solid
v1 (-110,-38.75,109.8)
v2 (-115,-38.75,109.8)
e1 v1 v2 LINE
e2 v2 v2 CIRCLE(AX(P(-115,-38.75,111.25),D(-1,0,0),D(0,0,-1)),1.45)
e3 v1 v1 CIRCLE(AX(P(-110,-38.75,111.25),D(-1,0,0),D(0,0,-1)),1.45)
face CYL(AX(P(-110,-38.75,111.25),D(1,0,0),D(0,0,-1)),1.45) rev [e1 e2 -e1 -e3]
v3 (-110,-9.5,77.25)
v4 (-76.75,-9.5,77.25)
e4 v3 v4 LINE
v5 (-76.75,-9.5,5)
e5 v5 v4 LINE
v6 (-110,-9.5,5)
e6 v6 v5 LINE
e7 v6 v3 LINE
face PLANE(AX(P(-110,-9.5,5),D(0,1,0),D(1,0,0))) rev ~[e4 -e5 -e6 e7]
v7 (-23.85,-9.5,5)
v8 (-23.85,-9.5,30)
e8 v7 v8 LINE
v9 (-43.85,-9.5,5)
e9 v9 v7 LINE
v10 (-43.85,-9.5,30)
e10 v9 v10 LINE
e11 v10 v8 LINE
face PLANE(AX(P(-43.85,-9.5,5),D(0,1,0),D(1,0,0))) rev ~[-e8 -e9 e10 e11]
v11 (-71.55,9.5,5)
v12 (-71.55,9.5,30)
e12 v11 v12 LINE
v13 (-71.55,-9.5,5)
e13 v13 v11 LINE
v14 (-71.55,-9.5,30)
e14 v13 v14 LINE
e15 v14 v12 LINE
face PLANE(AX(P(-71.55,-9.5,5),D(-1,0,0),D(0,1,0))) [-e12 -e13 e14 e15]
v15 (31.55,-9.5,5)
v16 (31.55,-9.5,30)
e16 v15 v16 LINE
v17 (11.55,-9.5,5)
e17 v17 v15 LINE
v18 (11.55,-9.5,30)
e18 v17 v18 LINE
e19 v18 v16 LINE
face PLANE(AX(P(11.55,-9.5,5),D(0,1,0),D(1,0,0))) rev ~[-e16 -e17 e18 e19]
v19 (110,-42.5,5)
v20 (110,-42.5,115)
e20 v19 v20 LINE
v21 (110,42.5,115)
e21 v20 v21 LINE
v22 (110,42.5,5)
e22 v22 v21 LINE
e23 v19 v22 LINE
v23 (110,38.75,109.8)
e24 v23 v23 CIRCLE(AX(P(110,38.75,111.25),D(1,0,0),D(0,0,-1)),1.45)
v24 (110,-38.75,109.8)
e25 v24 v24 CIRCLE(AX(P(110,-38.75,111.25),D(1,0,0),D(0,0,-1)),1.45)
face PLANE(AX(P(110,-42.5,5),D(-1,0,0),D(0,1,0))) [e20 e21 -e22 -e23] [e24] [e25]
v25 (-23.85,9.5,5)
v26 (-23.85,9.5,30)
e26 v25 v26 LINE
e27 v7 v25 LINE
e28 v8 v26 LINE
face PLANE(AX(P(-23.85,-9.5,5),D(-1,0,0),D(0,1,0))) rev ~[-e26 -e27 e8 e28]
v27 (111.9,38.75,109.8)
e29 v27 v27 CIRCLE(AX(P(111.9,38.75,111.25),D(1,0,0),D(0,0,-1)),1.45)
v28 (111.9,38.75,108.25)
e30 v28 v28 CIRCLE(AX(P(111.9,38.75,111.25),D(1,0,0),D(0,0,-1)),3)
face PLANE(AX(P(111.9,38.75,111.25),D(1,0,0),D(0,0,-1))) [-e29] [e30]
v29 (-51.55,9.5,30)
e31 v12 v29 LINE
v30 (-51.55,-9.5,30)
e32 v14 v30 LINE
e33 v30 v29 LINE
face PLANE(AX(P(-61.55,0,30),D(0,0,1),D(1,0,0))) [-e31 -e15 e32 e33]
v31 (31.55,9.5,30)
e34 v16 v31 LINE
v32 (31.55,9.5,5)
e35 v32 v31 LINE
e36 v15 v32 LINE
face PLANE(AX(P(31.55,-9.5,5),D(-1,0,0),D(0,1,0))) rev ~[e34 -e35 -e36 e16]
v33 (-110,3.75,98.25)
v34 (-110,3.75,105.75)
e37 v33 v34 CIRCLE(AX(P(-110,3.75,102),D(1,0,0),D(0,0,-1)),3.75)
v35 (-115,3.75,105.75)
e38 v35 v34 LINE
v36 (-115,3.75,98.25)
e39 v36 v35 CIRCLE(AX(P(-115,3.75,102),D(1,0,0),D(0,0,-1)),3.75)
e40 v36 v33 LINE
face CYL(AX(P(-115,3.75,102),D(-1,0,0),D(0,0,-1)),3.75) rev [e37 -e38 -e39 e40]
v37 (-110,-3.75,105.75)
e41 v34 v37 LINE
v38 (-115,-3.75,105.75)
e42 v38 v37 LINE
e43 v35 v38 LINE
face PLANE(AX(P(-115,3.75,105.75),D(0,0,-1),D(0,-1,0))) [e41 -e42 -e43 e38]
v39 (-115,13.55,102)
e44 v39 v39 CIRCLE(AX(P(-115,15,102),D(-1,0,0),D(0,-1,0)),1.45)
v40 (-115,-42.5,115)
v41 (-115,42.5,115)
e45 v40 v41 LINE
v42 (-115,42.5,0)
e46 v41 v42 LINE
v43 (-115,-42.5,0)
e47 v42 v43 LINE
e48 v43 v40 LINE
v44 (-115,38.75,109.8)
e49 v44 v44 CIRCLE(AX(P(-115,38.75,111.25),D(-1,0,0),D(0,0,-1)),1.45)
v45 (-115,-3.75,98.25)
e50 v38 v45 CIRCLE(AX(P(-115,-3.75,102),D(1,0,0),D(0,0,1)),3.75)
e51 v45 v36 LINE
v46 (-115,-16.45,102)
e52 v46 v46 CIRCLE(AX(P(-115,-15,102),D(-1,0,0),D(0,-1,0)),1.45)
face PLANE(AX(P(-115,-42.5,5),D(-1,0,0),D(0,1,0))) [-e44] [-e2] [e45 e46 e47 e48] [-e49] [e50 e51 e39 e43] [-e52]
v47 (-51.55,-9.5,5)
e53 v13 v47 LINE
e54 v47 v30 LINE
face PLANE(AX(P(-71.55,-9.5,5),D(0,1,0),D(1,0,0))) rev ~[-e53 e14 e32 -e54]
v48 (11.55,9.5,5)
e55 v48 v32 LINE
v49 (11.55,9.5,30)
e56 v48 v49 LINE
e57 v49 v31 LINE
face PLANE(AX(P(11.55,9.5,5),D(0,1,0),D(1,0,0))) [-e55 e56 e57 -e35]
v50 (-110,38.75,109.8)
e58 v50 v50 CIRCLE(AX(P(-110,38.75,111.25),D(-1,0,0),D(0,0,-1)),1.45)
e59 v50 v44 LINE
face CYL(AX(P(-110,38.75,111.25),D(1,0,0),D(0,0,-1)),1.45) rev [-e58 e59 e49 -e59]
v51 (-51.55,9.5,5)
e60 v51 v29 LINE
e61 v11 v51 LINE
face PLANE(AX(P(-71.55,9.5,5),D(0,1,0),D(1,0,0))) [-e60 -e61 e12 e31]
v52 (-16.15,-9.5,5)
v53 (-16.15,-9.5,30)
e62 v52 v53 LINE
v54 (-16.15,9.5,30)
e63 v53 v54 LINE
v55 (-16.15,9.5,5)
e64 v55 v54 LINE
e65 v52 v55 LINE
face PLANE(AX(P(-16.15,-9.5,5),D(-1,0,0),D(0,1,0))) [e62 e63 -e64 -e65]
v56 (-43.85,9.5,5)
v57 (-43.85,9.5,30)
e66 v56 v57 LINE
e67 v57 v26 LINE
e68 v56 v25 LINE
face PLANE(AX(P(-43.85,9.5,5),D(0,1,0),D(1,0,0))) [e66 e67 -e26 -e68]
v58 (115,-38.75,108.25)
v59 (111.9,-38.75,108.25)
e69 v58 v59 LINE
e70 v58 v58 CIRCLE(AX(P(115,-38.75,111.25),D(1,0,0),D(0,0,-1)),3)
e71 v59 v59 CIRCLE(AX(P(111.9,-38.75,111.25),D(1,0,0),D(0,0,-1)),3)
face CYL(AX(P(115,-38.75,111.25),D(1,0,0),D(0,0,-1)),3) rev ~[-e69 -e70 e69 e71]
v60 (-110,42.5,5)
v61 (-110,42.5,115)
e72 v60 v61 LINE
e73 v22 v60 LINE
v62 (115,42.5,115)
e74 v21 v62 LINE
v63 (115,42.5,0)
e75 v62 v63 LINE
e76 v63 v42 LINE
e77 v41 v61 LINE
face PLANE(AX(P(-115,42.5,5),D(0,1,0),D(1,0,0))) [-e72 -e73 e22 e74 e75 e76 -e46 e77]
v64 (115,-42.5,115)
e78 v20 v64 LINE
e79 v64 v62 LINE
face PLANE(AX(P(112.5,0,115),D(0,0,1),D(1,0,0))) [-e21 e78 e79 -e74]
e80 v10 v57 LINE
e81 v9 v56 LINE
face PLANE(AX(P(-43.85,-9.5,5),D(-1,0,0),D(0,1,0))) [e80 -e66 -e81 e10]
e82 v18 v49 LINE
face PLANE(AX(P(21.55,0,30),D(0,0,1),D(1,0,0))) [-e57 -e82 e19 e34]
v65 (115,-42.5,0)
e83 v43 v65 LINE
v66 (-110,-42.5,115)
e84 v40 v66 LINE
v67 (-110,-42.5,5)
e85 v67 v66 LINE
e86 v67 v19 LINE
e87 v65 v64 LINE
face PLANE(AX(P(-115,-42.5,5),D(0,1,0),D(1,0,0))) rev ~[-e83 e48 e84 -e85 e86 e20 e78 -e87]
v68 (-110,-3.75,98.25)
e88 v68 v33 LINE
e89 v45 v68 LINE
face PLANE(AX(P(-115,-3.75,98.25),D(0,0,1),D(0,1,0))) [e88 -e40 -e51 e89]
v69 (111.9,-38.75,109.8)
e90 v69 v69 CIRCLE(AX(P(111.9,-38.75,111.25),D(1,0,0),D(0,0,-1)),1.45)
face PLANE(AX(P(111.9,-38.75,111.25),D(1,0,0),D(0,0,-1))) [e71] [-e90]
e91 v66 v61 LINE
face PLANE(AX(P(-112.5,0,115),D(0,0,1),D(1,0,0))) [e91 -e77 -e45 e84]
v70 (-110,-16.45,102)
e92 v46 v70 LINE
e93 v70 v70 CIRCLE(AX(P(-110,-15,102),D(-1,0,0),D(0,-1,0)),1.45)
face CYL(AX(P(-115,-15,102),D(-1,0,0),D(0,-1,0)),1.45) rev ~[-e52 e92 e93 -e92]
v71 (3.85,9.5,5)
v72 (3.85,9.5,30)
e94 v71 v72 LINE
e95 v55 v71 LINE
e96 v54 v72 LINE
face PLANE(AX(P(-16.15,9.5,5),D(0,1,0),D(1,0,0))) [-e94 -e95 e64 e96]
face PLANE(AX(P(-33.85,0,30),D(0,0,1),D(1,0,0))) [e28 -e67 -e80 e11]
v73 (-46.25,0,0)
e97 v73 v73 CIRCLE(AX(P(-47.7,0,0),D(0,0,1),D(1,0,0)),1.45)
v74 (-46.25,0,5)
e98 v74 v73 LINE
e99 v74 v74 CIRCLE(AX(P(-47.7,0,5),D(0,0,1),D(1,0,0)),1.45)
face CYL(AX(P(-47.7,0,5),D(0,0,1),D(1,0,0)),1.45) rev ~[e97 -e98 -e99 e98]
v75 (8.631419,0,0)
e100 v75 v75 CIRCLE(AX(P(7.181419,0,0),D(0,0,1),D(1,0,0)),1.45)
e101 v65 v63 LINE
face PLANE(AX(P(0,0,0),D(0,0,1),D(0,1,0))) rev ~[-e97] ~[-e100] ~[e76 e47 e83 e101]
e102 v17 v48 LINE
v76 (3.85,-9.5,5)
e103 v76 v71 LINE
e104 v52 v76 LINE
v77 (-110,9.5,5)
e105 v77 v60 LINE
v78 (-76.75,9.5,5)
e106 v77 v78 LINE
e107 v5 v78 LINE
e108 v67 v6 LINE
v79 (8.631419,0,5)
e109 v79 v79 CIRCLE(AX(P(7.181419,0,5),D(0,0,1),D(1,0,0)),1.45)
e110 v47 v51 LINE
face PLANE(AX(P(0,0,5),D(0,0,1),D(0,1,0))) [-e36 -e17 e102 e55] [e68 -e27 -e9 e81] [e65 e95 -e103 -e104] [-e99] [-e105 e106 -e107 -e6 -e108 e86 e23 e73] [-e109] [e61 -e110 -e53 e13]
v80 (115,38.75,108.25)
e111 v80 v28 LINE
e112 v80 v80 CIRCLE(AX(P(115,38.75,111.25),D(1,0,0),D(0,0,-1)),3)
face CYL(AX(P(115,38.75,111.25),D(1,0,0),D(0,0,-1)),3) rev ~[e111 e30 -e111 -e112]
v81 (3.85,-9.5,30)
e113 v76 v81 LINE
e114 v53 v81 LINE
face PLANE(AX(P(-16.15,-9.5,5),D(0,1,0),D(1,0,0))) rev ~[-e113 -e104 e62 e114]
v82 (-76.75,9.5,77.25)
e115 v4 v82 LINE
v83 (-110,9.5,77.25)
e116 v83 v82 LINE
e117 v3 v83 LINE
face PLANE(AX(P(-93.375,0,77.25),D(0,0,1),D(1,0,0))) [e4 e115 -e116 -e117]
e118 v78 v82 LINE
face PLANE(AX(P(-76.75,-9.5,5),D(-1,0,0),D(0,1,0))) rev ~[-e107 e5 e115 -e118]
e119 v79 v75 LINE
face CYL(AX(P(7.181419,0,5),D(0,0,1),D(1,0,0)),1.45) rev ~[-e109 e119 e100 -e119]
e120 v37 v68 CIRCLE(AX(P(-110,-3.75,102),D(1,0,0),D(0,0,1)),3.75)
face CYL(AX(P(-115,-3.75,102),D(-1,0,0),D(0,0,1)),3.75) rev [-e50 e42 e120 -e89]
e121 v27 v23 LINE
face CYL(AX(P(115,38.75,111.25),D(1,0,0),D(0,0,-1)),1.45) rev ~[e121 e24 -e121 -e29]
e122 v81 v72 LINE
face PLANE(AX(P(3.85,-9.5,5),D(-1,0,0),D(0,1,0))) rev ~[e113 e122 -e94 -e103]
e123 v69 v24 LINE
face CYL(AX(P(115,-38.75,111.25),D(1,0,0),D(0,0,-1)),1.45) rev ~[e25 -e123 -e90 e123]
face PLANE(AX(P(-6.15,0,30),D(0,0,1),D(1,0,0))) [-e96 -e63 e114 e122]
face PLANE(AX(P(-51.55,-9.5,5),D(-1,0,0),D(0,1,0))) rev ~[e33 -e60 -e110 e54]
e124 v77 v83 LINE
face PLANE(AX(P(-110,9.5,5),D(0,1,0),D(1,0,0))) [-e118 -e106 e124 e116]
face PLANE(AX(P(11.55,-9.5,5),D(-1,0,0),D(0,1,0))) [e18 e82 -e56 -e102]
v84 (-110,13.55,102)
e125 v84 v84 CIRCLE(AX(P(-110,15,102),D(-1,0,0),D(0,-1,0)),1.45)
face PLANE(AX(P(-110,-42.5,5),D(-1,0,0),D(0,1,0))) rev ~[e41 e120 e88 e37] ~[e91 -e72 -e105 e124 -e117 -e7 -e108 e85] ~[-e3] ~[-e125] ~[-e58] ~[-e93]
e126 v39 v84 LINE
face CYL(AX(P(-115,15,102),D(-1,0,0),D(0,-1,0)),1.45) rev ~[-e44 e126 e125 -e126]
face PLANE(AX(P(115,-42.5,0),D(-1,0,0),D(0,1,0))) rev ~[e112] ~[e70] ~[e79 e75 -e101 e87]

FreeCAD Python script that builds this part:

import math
import FreeCAD as App
import Part
import Sketcher

V = App.Vector


def add_polygon(sketch, points):
    """Adds a closed chain of lines whose ends are joined by coincident constraints."""
    first, n = sketch.GeometryCount, len(points)
    for a, b in zip(points, points[1:] + points[:1]):
        sketch.addGeometry(Part.LineSegment(App.Vector(*a, 0), App.Vector(*b, 0)), False)
    for i in range(n):
        sketch.addConstraint(Sketcher.Constraint("Coincident", first + i, 2, first + (i + 1) % n, 1))

doc = App.newDocument("Part")
body = doc.addObject("PartDesign::Body", "Body")

# Sketch on XY plane
sketch1 = doc.addObject("Sketcher::SketchObject", "Sketch")
body.addObject(sketch1)
sketch1.AttachmentSupport = (doc.XY_Plane, [""])
sketch1.MapMode = "FlatFace"
add_polygon(sketch1, [(115, -42), (115, 42), (-115, 42), (-115, -42)])  # lines 0-3
sketch1.addConstraint([
    Sketcher.Constraint("Vertical", 0),
    Sketcher.Constraint("Horizontal", 1),
    Sketcher.Constraint("Vertical", 2),
    Sketcher.Constraint("Horizontal", 3),
    Sketcher.Constraint("Symmetric", 0, 2, 2, 2, -1, 1),
    Sketcher.Constraint("DistanceX", 1, 2, 1, 1, 230.0),
    Sketcher.Constraint("DistanceY", 0, 1, 0, 2, 85.0),
])
pad1 = doc.addObject("PartDesign::Pad", "Pad")
body.addObject(pad1)
pad1.Profile = sketch1
pad1.Length = 5

# Sketch on XY plane
sketch2 = doc.addObject("Sketcher::SketchObject", "Sketch001")
body.addObject(sketch2)
sketch2.AttachmentSupport = (doc.XY_Plane, [""])
sketch2.MapMode = "FlatFace"
sketch2.AttachmentOffset = App.Placement(V(0, 0, 5), App.Rotation())
add_polygon(sketch2, [(-115, 42), (-115, -42), (-110, -42), (-110, 42)])  # lines 0-3
add_polygon(sketch2, [(110, 42), (110, -42), (115, -42), (115, 42)])  # lines 4-7
sketch2.addConstraint([
    Sketcher.Constraint("Vertical", 0),
    Sketcher.Constraint("Horizontal", 1),
    Sketcher.Constraint("Vertical", 2),
    Sketcher.Constraint("Horizontal", 3),
    Sketcher.Constraint("Vertical", 4),
    Sketcher.Constraint("Horizontal", 5),
    Sketcher.Constraint("Vertical", 6),
    Sketcher.Constraint("Horizontal", 7),
    Sketcher.Constraint("Symmetric", 2, 2, 4, 2, -1, 1),
    Sketcher.Constraint("Symmetric", 0, 2, 6, 2, -1, 1),
    Sketcher.Constraint("Horizontal", 1, 2, 4, 2),
    Sketcher.Constraint("DistanceX", 1, 1, 1, 2, 5.0),
    Sketcher.Constraint("DistanceY", 0, 2, 0, 1, 85.0),
    Sketcher.Constraint("DistanceX", 0, 2, -1, 1, 115.0),
])
pad2 = doc.addObject("PartDesign::Pad", "Pad001")
body.addObject(pad2)
pad2.Profile = sketch2
pad2.Length = 110

# Sketch on XY plane
sketch3 = doc.addObject("Sketcher::SketchObject", "Sketch002")
body.addObject(sketch3)
sketch3.AttachmentSupport = (doc.XY_Plane, [""])
sketch3.MapMode = "FlatFace"
sketch3.AttachmentOffset = App.Placement(V(0, 0, 5), App.Rotation())
add_polygon(sketch3, [(-72, 10), (-72, -10), (-52, -10), (-52, 10)])  # lines 0-3
add_polygon(sketch3, [(-44, 10), (-44, -10), (-24, -10), (-24, 10)])  # lines 4-7
add_polygon(sketch3, [(-16, 10), (-16, -10), (4, -10), (4, 10)])  # lines 8-11
add_polygon(sketch3, [(12, 10), (12, -10), (32, -10), (32, 10)])  # lines 12-15
sketch3.addConstraint([
    Sketcher.Constraint("Vertical", 0),
    Sketcher.Constraint("Horizontal", 1),
    Sketcher.Constraint("Vertical", 2),
    Sketcher.Constraint("Horizontal", 3),
    Sketcher.Constraint("Vertical", 4),
    Sketcher.Constraint("Horizontal", 5),
    Sketcher.Constraint("Vertical", 6),
    Sketcher.Constraint("Horizontal", 7),
    Sketcher.Constraint("Vertical", 8),
    Sketcher.Constraint("Horizontal", 9),
    Sketcher.Constraint("Vertical", 10),
    Sketcher.Constraint("Horizontal", 11),
    Sketcher.Constraint("Vertical", 12),
    Sketcher.Constraint("Horizontal", 13),
    Sketcher.Constraint("Vertical", 14),
    Sketcher.Constraint("Horizontal", 15),
    Sketcher.Constraint("Horizontal", 1, 2, 4, 2),
    Sketcher.Constraint("Horizontal", 3, 2, 6, 2),
    Sketcher.Constraint("Horizontal", 5, 2, 8, 2),
    Sketcher.Constraint("Horizontal", 7, 2, 10, 2),
    Sketcher.Constraint("Horizontal", 9, 2, 12, 2),
    Sketcher.Constraint("Horizontal", 11, 2, 14, 2),
    Sketcher.Constraint("Equal", 3, 5),
    Sketcher.Constraint("Equal", 7, 9),
    Sketcher.Constraint("Equal", 11, 13),
    Sketcher.Constraint("DistanceX", 1, 1, 1, 2, 20.0),
    Sketcher.Constraint("DistanceY", 0, 2, 0, 1, 19.0),
    Sketcher.Constraint("DistanceY", 0, 2, -1, 1, 9.5),
    Sketcher.Constraint("DistanceX", 1, 2, 4, 2, 7.7),
    Sketcher.Constraint("DistanceX", 5, 2, 8, 2, 7.7),
    Sketcher.Constraint("DistanceX", 9, 2, 12, 2, 7.7),
    Sketcher.Constraint("DistanceX", 0, 2, -1, 1, 71.55),
])
pad3 = doc.addObject("PartDesign::Pad", "Pad002")
body.addObject(pad3)
pad3.Profile = sketch3
pad3.Length = 25

# Sketch on YZ plane
sketch4 = doc.addObject("Sketcher::SketchObject", "Sketch003")
body.addObject(sketch4)
sketch4.AttachmentSupport = (doc.YZ_Plane, [""])
sketch4.MapMode = "FlatFace"
sketch4.AttachmentOffset = App.Placement(V(0, 0, -115), App.Rotation())
sketch4.addGeometry([
    Part.Circle(V(15, 102, 0), V(0, 0, 1), 1.4),  # 0
    Part.Circle(V(-15, 102, 0), V(0, 0, 1), 1.4),  # 1
    Part.LineSegment(V(-3.8, 105.8, 0), V(3.8, 105.8, 0)),  # 2
    Part.ArcOfCircle(Part.Circle(V(3.8, 102, 0), V(0, 0, 1), 3.8), math.radians(-90), math.radians(90)),  # 3
    Part.LineSegment(V(3.8, 98.2, 0), V(-3.8, 98.2, 0)),  # 4
    Part.ArcOfCircle(Part.Circle(V(-3.8, 102, 0), V(0, 0, 1), 3.8), math.radians(90), math.radians(270)),  # 5
], False)
sketch4.addConstraint([
    Sketcher.Constraint("Tangent", 2, 2, 3, 2),
    Sketcher.Constraint("Tangent", 3, 1, 4, 1),
    Sketcher.Constraint("Tangent", 4, 2, 5, 2),
    Sketcher.Constraint("Tangent", 5, 1, 2, 1),
    Sketcher.Constraint("Horizontal", 2),
    Sketcher.Constraint("Horizontal", 4),
    Sketcher.Constraint("Equal", 0, 1),
    Sketcher.Constraint("Symmetric", 0, 3, 1, 3, -2),
    Sketcher.Constraint("Horizontal", 1, 3, 3, 3),
    Sketcher.Constraint("Diameter", 0, 2.9),
    Sketcher.Constraint("Radius", 3, 3.75),
    Sketcher.Constraint("DistanceX", 2, 1, 2, 2, 7.5),
    Sketcher.Constraint("DistanceX", -1, 1, 0, 3, 15.0),
    Sketcher.Constraint("DistanceY", -1, 1, 0, 3, 102.0),
    Sketcher.Constraint("DistanceX", -1, 1, 3, 3, 3.75),
])
pocket1 = doc.addObject("PartDesign::Pocket", "Pocket")
body.addObject(pocket1)
pocket1.Profile = sketch4
pocket1.Length = 5
pocket1.Reversed = True

# Sketch on XY plane
sketch5 = doc.addObject("Sketcher::SketchObject", "Sketch004")
body.addObject(sketch5)
sketch5.AttachmentSupport = (doc.XY_Plane, [""])
sketch5.MapMode = "FlatFace"
sketch5.AttachmentOffset = App.Placement(V(0, 0, 5), App.Rotation())
sketch5.addGeometry([
    Part.Circle(V(-47.7, 0, 0), V(0, 0, 1), 1.4),
    Part.Circle(V(7.2, 0, 0), V(0, 0, 1), 1.4),
], False)
sketch5.addConstraint([
    Sketcher.Constraint("Equal", 0, 1),
    Sketcher.Constraint("PointOnObject", 0, 3, -1),
    Sketcher.Constraint("PointOnObject", 1, 3, -1),
    Sketcher.Constraint("Diameter", 0, 2.9),
    Sketcher.Constraint("DistanceX", 0, 3, -1, 1, 47.7),
    Sketcher.Constraint("DistanceX", -1, 1, 1, 3, 7.181419),
])
pocket2 = doc.addObject("PartDesign::Pocket", "Pocket001")
body.addObject(pocket2)
pocket2.Profile = sketch5
pocket2.Length = 5

# Sketch on YZ plane
sketch6 = doc.addObject("Sketcher::SketchObject", "Sketch005")
body.addObject(sketch6)
sketch6.AttachmentSupport = (doc.YZ_Plane, [""])
sketch6.MapMode = "FlatFace"
sketch6.AttachmentOffset = App.Placement(V(0, 0, 115), App.Rotation())
sketch6.addGeometry([
    Part.Circle(V(-38.8, 111.2, 0), V(0, 0, 1), 3),
    Part.Circle(V(-38.8, 111.2, 0), V(0, 0, 1), 1.4),
    Part.Circle(V(38.8, 111.2, 0), V(0, 0, 1), 3),
    Part.Circle(V(38.8, 111.2, 0), V(0, 0, 1), 1.4),
], False)
sketch6.addConstraint([
    Sketcher.Constraint("Coincident", 1, 3, 0, 3),
    Sketcher.Constraint("Coincident", 3, 3, 2, 3),
    Sketcher.Constraint("Equal", 0, 2),
    Sketcher.Constraint("Equal", 1, 3),
    Sketcher.Constraint("Symmetric", 0, 3, 2, 3, -2),
    Sketcher.Constraint("Diameter", 0, 6.0),
    Sketcher.Constraint("Diameter", 1, 2.9),
    Sketcher.Constraint("DistanceX", 0, 3, 2, 3, 77.5),
    Sketcher.Constraint("DistanceY", -1, 1, 0, 3, 111.25),
])
pocket3 = doc.addObject("PartDesign::Pocket", "Pocket002")
body.addObject(pocket3)
pocket3.Profile = sketch6
pocket3.Length = 3.1

# Sketch on YZ plane
sketch7 = doc.addObject("Sketcher::SketchObject", "Sketch006")
body.addObject(sketch7)
sketch7.AttachmentSupport = (doc.YZ_Plane, [""])
sketch7.MapMode = "FlatFace"
sketch7.AttachmentOffset = App.Placement(V(0, 0, 115), App.Rotation())
sketch7.addGeometry([
    Part.Circle(V(-38.8, 111.2, 0), V(0, 0, 1), 1.4),
    Part.Circle(V(38.8, 111.2, 0), V(0, 0, 1), 1.4),
], False)
sketch7.addConstraint([
    Sketcher.Constraint("Equal", 0, 1),
    Sketcher.Constraint("Symmetric", 0, 3, 1, 3, -2),
    Sketcher.Constraint("Diameter", 0, 2.9),
    Sketcher.Constraint("DistanceX", 0, 3, 1, 3, 77.5),
    Sketcher.Constraint("DistanceY", -1, 1, 0, 3, 111.25),
])
pocket4 = doc.addObject("PartDesign::Pocket", "Pocket003")
body.addObject(pocket4)
pocket4.Profile = sketch7
pocket4.Length = 5

# Sketch on YZ plane
sketch8 = doc.addObject("Sketcher::SketchObject", "Sketch007")
body.addObject(sketch8)
sketch8.AttachmentSupport = (doc.YZ_Plane, [""])
sketch8.MapMode = "FlatFace"
sketch8.AttachmentOffset = App.Placement(V(0, 0, -110), App.Rotation())
sketch8.addGeometry([
    Part.Circle(V(38.8, 111.2, 0), V(0, 0, 1), 1.4),
    Part.Circle(V(-38.8, 111.2, 0), V(0, 0, 1), 1.4),
], False)
sketch8.addConstraint([
    Sketcher.Constraint("Equal", 0, 1),
    Sketcher.Constraint("Symmetric", 0, 3, 1, 3, -2),
    Sketcher.Constraint("Diameter", 0, 2.9),
    Sketcher.Constraint("DistanceX", 1, 3, 0, 3, 77.5),
    Sketcher.Constraint("DistanceY", -1, 1, 0, 3, 111.25),
])
pocket5 = doc.addObject("PartDesign::Pocket", "Pocket004")
body.addObject(pocket5)
pocket5.Profile = sketch8
pocket5.Length = 5

# Sketch on XY plane
sketch9 = doc.addObject("Sketcher::SketchObject", "Sketch008")
body.addObject(sketch9)
sketch9.AttachmentSupport = (doc.XY_Plane, [""])
sketch9.MapMode = "FlatFace"
sketch9.AttachmentOffset = App.Placement(V(0, 0, 5), App.Rotation())
add_polygon(sketch9, [(-110, 10), (-110, -10), (-77, -10), (-77, 10)])  # lines 0-3
sketch9.addConstraint([
    Sketcher.Constraint("Vertical", 0),
    Sketcher.Constraint("Horizontal", 1),
    Sketcher.Constraint("Vertical", 2),
    Sketcher.Constraint("Horizontal", 3),
    Sketcher.Constraint("DistanceY", 0, 2, 0, 1, 19.0),
    Sketcher.Constraint("DistanceX", 0, 2, -1, 1, 110.0),
    Sketcher.Constraint("DistanceX", 1, 1, 1, 2, 33.25),
    Sketcher.Constraint("DistanceY", 0, 2, -1, 1, 9.5),
])
pad4 = doc.addObject("PartDesign::Pad", "Pad003")
body.addObject(pad4)
pad4.Profile = sketch9
pad4.Length = 72.25

doc.recompute()
